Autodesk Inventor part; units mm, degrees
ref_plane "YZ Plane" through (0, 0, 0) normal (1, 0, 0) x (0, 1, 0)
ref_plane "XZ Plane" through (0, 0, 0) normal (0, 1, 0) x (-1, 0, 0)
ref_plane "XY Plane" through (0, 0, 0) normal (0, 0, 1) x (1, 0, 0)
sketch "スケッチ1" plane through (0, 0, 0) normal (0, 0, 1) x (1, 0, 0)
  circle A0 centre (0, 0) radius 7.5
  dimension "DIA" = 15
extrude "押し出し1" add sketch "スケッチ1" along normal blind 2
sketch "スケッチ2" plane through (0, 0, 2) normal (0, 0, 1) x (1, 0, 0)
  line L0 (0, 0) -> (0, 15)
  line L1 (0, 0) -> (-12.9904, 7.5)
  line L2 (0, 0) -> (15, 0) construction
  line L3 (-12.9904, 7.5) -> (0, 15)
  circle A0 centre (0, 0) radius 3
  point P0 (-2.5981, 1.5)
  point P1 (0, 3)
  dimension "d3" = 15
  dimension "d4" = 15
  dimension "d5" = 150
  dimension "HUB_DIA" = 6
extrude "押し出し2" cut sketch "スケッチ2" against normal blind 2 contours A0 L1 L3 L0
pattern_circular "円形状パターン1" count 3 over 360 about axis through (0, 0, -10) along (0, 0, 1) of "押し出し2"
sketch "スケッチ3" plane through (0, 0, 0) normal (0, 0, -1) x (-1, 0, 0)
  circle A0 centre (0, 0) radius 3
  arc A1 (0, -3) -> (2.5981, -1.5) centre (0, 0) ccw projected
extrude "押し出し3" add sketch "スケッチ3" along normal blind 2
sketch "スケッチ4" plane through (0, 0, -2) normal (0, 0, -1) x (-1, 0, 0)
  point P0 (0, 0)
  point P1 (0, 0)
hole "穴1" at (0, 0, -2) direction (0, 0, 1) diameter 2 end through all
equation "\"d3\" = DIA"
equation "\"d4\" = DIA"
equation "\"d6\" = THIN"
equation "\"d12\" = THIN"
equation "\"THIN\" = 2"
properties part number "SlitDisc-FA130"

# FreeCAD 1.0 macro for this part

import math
import FreeCAD as App
import Part
import Sketcher

V = App.Vector
Q = App.Units.Quantity

doc = App.newDocument("Part")
params = doc.addObject("Spreadsheet::Sheet", "Params")
for row, (alias, value) in enumerate([
    ("sketch1_diameter", "15 mm"),
    ("pad1_length", "2 mm"),
    ("sketch2_radius", "3 mm"),
    ("sketch2_length", "15 mm"),
    ("pocket1_length", "2 mm"),
    ("sketch3_radius", "3 mm"),
    ("pad2_length", "2 mm"),
    ("sketch4_diameter", "2 mm"),
    ("hole_diameter", "2 mm"),
], start=1):
    params.set(f"A{row}", alias)
    params.set(f"B{row}", "=" + value)
    params.setAlias(f"B{row}", alias)

body = doc.addObject("PartDesign::Body", "Body")

# Sketch on XY plane
sketch1 = body.newObject("Sketcher::SketchObject", "Sketch")
sketch1.AttachmentSupport = (doc.getObject("XY_Plane"), [""])
sketch1.MapMode = "FlatFace"
sketch1.addGeometry(Part.Circle(V(0, 0, 0), V(0, 0, 1), 7.5), False)
sketch1.addConstraint([
    Sketcher.Constraint("Coincident", 0, 3, -1, 1),
    Sketcher.Constraint("Diameter", 0, Q("15 mm")),
])
sketch1.setExpression("Constraints[1]", "Params.sketch1_diameter")
pad1 = body.newObject("PartDesign::Pad", "Pad")
pad1.Profile = sketch1
pad1.setExpression("Length", "Params.pad1_length")

# Sketch on XY plane
sketch2 = body.newObject("Sketcher::SketchObject", "Sketch001")
sketch2.AttachmentSupport = (doc.getObject("XY_Plane"), [""])
sketch2.MapMode = "FlatFace"
sketch2.AttachmentOffset = App.Placement(V(0, 0, 2), App.Rotation())
sketch2.addGeometry([
    Part.ArcOfCircle(Part.Circle(V(0, 0, 0), V(0, 0, 1), 3), math.radians(90), math.radians(150.000036)),
    Part.LineSegment(V(0, 3, 0), V(0, 15, 0)),
    Part.LineSegment(V(0, 15, 0), V(-12.9904, 7.5, 0)),
    Part.LineSegment(V(-12.9904, 7.5, 0), V(-2.598077, 1.499998, 0)),
], False)
sketch2.addConstraint([
    Sketcher.Constraint("Coincident", 0, 1, 1, 1),
    Sketcher.Constraint("Coincident", 1, 2, 2, 1),
    Sketcher.Constraint("Coincident", 2, 2, 3, 1),
    Sketcher.Constraint("Coincident", 3, 2, 0, 2),
    Sketcher.Constraint("Vertical", 1),
    Sketcher.Constraint("Coincident", 0, 3, -1, 1),
    Sketcher.Constraint("PointOnObject", 0, 1, -2),
    Sketcher.Constraint("Radius", 0, Q("3 mm")),
    Sketcher.Constraint("Angle", 2, Q("-150 deg")),
    Sketcher.Constraint("Distance", 2, Q("15 mm")),
    Sketcher.Constraint("DistanceY", -1, 1, 1, 2, Q("15 mm")),
    Sketcher.Constraint("DistanceY", 3, 2, 2, 2, Q("6 mm")),
])
sketch2.setExpression("Constraints[7]", "Params.sketch2_radius")
sketch2.setExpression("Constraints[9]", "Params.sketch2_length")
pocket1 = body.newObject("PartDesign::Pocket", "Pocket")
pocket1.Profile = sketch2
pocket1.setExpression("Length", "Params.pocket1_length")
doc.recompute()

polarpattern = body.newObject("PartDesign::PolarPattern", "PolarPattern")
polarpattern.Originals = [pocket1]
polarpattern.Axis = (doc.getObject("Z_Axis"), [""])
polarpattern.Angle = 360
polarpattern.Occurrences = 3
body.Tip = polarpattern

# Sketch on XY plane
sketch3 = body.newObject("Sketcher::SketchObject", "Sketch002")
sketch3.AttachmentSupport = (doc.getObject("XY_Plane"), [""])
sketch3.MapMode = "FlatFace"
sketch3.addGeometry([
    Part.ArcOfCircle(Part.Circle(V(0, 0, 0), V(0, 0, 1), 3), math.radians(-90), math.radians(209.999773)),
    Part.ArcOfCircle(Part.Circle(V(0, 0, 0), V(0, 0, 1), 3), math.radians(-150.000227), math.radians(-90)),
], False)
sketch3.addConstraint([
    Sketcher.Constraint("Tangent", 0, 1, 1, 2),
    Sketcher.Constraint("Coincident", 1, 1, 0, 2),
    Sketcher.Constraint("Coincident", 0, 3, -1, 1),
    Sketcher.Constraint("PointOnObject", 0, 1, -2),
    Sketcher.Constraint("Radius", 0, Q("3 mm")),
    Sketcher.Constraint("DistanceY", 1, 1, -1, 1, Q("1.5 mm")),
])
sketch3.setExpression("Constraints[4]", "Params.sketch3_radius")
pad2 = body.newObject("PartDesign::Pad", "Pad001")
pad2.Profile = sketch3
pad2.setExpression("Length", "Params.pad2_length")
pad2.Reversed = True

# Sketch on XY plane
sketch4 = body.newObject("Sketcher::SketchObject", "Sketch003")
sketch4.AttachmentSupport = (doc.getObject("XY_Plane"), [""])
sketch4.MapMode = "FlatFace"
sketch4.AttachmentOffset = App.Placement(V(0, 0, -2), App.Rotation())
sketch4.addGeometry(Part.Circle(V(0, 0, 0), V(0, 0, 1), 1), False)
sketch4.addConstraint([
    Sketcher.Constraint("Coincident", 0, 3, -1, 1),
    Sketcher.Constraint("Diameter", 0, Q("2 mm")),
])
sketch4.setExpression("Constraints[1]", "Params.sketch4_diameter")
doc.recompute()
hole = body.newObject("PartDesign::Hole", "Hole")
hole.Profile = sketch4
hole.ThreadType = "None"
hole.setExpression("Diameter", "Params.hole_diameter")
hole.DepthType = "ThroughAll"
hole.Reversed = True

doc.recompute()
